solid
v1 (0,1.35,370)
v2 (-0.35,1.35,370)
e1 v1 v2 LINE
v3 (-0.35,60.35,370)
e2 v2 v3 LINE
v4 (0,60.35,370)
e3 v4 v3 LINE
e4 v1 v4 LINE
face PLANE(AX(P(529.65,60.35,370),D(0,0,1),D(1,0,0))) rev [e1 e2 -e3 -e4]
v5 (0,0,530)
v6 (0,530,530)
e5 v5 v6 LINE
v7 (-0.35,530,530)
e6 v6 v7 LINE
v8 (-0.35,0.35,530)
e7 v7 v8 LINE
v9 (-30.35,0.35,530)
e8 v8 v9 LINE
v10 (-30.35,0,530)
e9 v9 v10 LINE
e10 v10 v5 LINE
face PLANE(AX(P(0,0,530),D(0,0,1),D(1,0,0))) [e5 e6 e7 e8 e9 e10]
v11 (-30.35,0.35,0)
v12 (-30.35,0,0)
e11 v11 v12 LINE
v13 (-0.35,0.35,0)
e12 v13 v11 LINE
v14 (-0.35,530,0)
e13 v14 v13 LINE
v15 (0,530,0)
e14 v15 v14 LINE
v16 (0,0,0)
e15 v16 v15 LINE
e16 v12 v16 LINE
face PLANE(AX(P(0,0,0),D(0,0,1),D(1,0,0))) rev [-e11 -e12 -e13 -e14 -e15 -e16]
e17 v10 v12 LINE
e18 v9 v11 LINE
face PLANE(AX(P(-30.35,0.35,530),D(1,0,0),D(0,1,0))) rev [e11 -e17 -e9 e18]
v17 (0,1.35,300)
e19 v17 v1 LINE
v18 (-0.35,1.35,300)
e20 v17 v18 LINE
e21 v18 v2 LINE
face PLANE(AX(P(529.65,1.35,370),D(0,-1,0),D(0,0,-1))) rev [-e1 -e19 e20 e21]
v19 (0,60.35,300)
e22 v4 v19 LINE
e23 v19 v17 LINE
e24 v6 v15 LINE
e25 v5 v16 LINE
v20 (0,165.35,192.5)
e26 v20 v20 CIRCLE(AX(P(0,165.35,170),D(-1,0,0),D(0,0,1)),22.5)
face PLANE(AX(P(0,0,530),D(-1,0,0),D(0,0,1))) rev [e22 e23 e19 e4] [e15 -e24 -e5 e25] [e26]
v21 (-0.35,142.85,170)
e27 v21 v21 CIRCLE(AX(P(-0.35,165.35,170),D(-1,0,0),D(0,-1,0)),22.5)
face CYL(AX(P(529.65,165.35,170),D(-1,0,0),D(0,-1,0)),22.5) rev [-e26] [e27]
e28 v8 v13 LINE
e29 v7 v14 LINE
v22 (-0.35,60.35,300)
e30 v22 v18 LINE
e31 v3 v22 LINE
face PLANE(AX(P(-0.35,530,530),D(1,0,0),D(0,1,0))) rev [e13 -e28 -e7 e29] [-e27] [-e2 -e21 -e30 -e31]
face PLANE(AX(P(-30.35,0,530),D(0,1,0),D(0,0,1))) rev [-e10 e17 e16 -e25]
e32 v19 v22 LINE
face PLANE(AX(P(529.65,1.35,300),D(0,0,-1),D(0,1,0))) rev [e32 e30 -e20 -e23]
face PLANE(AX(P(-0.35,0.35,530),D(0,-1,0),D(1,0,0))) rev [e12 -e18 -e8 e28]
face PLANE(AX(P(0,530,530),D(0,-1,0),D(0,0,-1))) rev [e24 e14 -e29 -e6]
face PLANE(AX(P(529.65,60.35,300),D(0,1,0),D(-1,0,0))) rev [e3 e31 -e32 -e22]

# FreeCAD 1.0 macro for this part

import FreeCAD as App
import Part
import Sketcher

V = App.Vector
Q = App.Units.Quantity


def add_polygon(sketch, points):
    """Adds a closed chain of lines whose ends are joined by coincident constraints."""
    first, n = sketch.GeometryCount, len(points)
    for a, b in zip(points, points[1:] + points[:1]):
        sketch.addGeometry(Part.LineSegment(App.Vector(*a, 0), App.Vector(*b, 0)), False)
    for i in range(n):
        sketch.addConstraint(Sketcher.Constraint("Coincident", first + i, 2, first + (i + 1) % n, 1))

doc = App.newDocument("Part")
params = doc.addObject("Spreadsheet::Sheet", "Params")
for row, (alias, value) in enumerate([
    ("sketch1_width", "30 mm"),
    ("sketch1_height", "530 mm"),
    ("sketch1_width2", "0.35 mm"),
    ("pad1_length", "530 mm"),
    ("sketch2_diameter", "45 mm"),
    ("pocket1_length", "530 mm"),
    ("sketch3_width", "59 mm"),
    ("sketch3_height", "70 mm"),
    ("pocket2_length", "530 mm"),
], start=1):
    params.set(f"A{row}", alias)
    params.set(f"B{row}", "=" + value)
    params.setAlias(f"B{row}", alias)

body = doc.addObject("PartDesign::Body", "Body")

# Sketch on XY plane
sketch1 = body.newObject("Sketcher::SketchObject", "Sketch")
sketch1.AttachmentSupport = (doc.getObject("XY_Plane"), [""])
sketch1.MapMode = "FlatFace"
add_polygon(sketch1, [(0, 0), (0, 530), (-0.35, 530), (-0.35, 0.35), (-30.35, 0.35), (-30.35, 0)])  # lines 0-5
sketch1.addConstraint(Sketcher.Constraint("Vertical", 0))
sketch1.addConstraint(Sketcher.Constraint("Horizontal", 1))
sketch1.addConstraint(Sketcher.Constraint("Vertical", 2))
sketch1.addConstraint(Sketcher.Constraint("Horizontal", 3))
sketch1.addConstraint(Sketcher.Constraint("Vertical", 4))
sketch1.addConstraint(Sketcher.Constraint("Horizontal", 5))
sketch1.addConstraint(Sketcher.Constraint("Coincident", 5, 2, -1, 1))
sketch1.addConstraint(Sketcher.Constraint("Equal", 1, 4))
sketch1.addConstraint(Sketcher.Constraint("DistanceX", 3, 2, 3, 1, Q("30 mm")))
sketch1.addConstraint(Sketcher.Constraint("DistanceY", 0, 1, 0, 2, Q("530 mm")))
sketch1.addConstraint(Sketcher.Constraint("DistanceX", 1, 2, 1, 1, Q("0.35 mm")))
sketch1.setExpression("Constraints[14]", "Params.sketch1_width")
sketch1.setExpression("Constraints[15]", "Params.sketch1_height")
sketch1.setExpression("Constraints[16]", "Params.sketch1_width2")
pad1 = body.newObject("PartDesign::Pad", "Pad")
pad1.Profile = sketch1
pad1.setExpression("Length", "Params.pad1_length")

# Sketch on YZ plane
sketch2 = body.newObject("Sketcher::SketchObject", "Sketch001")
sketch2.AttachmentSupport = (doc.getObject("YZ_Plane"), [""])
sketch2.MapMode = "FlatFace"
sketch2.AttachmentOffset = App.Placement(V(0, 0, -0.35), App.Rotation())
sketch2.addGeometry(Part.Circle(V(165, 170, 0), V(0, 0, 1), 22), False)
sketch2.addConstraint(Sketcher.Constraint("Diameter", 0, Q("45 mm")))
sketch2.addConstraint(Sketcher.Constraint("DistanceY", -1, 1, 0, 3, Q("170 mm")))
sketch2.addConstraint(Sketcher.Constraint("DistanceX", -1, 1, 0, 3, Q("165.35 mm")))
sketch2.setExpression("Constraints[0]", "Params.sketch2_diameter")
pocket1 = body.newObject("PartDesign::Pocket", "Pocket")
pocket1.Profile = sketch2
pocket1.setExpression("Length", "Params.pocket1_length")
pocket1.Reversed = True

# Sketch on YZ plane
sketch3 = body.newObject("Sketcher::SketchObject", "Sketch002")
sketch3.AttachmentSupport = (doc.getObject("YZ_Plane"), [""])
sketch3.MapMode = "FlatFace"
sketch3.AttachmentOffset = App.Placement(V(0, 0, -0.35), App.Rotation())
add_polygon(sketch3, [(60, 300), (1, 300), (1, 370), (60, 370)])  # lines 0-3
sketch3.addConstraint(Sketcher.Constraint("Horizontal", 0))
sketch3.addConstraint(Sketcher.Constraint("Vertical", 1))
sketch3.addConstraint(Sketcher.Constraint("Horizontal", 2))
sketch3.addConstraint(Sketcher.Constraint("Vertical", 3))
sketch3.addConstraint(Sketcher.Constraint("DistanceX", 0, 2, 0, 1, Q("59 mm")))
sketch3.addConstraint(Sketcher.Constraint("DistanceY", 1, 1, 1, 2, Q("70 mm")))
sketch3.addConstraint(Sketcher.Constraint("DistanceY", -1, 1, 0, 2, Q("300 mm")))
sketch3.addConstraint(Sketcher.Constraint("DistanceX", -1, 1, 0, 2, Q("1.35 mm")))
sketch3.setExpression("Constraints[8]", "Params.sketch3_width")
sketch3.setExpression("Constraints[9]", "Params.sketch3_height")
pocket2 = body.newObject("PartDesign::Pocket", "Pocket001")
pocket2.Profile = sketch3
pocket2.setExpression("Length", "Params.pocket2_length")
pocket2.Reversed = True

doc.recompute()
